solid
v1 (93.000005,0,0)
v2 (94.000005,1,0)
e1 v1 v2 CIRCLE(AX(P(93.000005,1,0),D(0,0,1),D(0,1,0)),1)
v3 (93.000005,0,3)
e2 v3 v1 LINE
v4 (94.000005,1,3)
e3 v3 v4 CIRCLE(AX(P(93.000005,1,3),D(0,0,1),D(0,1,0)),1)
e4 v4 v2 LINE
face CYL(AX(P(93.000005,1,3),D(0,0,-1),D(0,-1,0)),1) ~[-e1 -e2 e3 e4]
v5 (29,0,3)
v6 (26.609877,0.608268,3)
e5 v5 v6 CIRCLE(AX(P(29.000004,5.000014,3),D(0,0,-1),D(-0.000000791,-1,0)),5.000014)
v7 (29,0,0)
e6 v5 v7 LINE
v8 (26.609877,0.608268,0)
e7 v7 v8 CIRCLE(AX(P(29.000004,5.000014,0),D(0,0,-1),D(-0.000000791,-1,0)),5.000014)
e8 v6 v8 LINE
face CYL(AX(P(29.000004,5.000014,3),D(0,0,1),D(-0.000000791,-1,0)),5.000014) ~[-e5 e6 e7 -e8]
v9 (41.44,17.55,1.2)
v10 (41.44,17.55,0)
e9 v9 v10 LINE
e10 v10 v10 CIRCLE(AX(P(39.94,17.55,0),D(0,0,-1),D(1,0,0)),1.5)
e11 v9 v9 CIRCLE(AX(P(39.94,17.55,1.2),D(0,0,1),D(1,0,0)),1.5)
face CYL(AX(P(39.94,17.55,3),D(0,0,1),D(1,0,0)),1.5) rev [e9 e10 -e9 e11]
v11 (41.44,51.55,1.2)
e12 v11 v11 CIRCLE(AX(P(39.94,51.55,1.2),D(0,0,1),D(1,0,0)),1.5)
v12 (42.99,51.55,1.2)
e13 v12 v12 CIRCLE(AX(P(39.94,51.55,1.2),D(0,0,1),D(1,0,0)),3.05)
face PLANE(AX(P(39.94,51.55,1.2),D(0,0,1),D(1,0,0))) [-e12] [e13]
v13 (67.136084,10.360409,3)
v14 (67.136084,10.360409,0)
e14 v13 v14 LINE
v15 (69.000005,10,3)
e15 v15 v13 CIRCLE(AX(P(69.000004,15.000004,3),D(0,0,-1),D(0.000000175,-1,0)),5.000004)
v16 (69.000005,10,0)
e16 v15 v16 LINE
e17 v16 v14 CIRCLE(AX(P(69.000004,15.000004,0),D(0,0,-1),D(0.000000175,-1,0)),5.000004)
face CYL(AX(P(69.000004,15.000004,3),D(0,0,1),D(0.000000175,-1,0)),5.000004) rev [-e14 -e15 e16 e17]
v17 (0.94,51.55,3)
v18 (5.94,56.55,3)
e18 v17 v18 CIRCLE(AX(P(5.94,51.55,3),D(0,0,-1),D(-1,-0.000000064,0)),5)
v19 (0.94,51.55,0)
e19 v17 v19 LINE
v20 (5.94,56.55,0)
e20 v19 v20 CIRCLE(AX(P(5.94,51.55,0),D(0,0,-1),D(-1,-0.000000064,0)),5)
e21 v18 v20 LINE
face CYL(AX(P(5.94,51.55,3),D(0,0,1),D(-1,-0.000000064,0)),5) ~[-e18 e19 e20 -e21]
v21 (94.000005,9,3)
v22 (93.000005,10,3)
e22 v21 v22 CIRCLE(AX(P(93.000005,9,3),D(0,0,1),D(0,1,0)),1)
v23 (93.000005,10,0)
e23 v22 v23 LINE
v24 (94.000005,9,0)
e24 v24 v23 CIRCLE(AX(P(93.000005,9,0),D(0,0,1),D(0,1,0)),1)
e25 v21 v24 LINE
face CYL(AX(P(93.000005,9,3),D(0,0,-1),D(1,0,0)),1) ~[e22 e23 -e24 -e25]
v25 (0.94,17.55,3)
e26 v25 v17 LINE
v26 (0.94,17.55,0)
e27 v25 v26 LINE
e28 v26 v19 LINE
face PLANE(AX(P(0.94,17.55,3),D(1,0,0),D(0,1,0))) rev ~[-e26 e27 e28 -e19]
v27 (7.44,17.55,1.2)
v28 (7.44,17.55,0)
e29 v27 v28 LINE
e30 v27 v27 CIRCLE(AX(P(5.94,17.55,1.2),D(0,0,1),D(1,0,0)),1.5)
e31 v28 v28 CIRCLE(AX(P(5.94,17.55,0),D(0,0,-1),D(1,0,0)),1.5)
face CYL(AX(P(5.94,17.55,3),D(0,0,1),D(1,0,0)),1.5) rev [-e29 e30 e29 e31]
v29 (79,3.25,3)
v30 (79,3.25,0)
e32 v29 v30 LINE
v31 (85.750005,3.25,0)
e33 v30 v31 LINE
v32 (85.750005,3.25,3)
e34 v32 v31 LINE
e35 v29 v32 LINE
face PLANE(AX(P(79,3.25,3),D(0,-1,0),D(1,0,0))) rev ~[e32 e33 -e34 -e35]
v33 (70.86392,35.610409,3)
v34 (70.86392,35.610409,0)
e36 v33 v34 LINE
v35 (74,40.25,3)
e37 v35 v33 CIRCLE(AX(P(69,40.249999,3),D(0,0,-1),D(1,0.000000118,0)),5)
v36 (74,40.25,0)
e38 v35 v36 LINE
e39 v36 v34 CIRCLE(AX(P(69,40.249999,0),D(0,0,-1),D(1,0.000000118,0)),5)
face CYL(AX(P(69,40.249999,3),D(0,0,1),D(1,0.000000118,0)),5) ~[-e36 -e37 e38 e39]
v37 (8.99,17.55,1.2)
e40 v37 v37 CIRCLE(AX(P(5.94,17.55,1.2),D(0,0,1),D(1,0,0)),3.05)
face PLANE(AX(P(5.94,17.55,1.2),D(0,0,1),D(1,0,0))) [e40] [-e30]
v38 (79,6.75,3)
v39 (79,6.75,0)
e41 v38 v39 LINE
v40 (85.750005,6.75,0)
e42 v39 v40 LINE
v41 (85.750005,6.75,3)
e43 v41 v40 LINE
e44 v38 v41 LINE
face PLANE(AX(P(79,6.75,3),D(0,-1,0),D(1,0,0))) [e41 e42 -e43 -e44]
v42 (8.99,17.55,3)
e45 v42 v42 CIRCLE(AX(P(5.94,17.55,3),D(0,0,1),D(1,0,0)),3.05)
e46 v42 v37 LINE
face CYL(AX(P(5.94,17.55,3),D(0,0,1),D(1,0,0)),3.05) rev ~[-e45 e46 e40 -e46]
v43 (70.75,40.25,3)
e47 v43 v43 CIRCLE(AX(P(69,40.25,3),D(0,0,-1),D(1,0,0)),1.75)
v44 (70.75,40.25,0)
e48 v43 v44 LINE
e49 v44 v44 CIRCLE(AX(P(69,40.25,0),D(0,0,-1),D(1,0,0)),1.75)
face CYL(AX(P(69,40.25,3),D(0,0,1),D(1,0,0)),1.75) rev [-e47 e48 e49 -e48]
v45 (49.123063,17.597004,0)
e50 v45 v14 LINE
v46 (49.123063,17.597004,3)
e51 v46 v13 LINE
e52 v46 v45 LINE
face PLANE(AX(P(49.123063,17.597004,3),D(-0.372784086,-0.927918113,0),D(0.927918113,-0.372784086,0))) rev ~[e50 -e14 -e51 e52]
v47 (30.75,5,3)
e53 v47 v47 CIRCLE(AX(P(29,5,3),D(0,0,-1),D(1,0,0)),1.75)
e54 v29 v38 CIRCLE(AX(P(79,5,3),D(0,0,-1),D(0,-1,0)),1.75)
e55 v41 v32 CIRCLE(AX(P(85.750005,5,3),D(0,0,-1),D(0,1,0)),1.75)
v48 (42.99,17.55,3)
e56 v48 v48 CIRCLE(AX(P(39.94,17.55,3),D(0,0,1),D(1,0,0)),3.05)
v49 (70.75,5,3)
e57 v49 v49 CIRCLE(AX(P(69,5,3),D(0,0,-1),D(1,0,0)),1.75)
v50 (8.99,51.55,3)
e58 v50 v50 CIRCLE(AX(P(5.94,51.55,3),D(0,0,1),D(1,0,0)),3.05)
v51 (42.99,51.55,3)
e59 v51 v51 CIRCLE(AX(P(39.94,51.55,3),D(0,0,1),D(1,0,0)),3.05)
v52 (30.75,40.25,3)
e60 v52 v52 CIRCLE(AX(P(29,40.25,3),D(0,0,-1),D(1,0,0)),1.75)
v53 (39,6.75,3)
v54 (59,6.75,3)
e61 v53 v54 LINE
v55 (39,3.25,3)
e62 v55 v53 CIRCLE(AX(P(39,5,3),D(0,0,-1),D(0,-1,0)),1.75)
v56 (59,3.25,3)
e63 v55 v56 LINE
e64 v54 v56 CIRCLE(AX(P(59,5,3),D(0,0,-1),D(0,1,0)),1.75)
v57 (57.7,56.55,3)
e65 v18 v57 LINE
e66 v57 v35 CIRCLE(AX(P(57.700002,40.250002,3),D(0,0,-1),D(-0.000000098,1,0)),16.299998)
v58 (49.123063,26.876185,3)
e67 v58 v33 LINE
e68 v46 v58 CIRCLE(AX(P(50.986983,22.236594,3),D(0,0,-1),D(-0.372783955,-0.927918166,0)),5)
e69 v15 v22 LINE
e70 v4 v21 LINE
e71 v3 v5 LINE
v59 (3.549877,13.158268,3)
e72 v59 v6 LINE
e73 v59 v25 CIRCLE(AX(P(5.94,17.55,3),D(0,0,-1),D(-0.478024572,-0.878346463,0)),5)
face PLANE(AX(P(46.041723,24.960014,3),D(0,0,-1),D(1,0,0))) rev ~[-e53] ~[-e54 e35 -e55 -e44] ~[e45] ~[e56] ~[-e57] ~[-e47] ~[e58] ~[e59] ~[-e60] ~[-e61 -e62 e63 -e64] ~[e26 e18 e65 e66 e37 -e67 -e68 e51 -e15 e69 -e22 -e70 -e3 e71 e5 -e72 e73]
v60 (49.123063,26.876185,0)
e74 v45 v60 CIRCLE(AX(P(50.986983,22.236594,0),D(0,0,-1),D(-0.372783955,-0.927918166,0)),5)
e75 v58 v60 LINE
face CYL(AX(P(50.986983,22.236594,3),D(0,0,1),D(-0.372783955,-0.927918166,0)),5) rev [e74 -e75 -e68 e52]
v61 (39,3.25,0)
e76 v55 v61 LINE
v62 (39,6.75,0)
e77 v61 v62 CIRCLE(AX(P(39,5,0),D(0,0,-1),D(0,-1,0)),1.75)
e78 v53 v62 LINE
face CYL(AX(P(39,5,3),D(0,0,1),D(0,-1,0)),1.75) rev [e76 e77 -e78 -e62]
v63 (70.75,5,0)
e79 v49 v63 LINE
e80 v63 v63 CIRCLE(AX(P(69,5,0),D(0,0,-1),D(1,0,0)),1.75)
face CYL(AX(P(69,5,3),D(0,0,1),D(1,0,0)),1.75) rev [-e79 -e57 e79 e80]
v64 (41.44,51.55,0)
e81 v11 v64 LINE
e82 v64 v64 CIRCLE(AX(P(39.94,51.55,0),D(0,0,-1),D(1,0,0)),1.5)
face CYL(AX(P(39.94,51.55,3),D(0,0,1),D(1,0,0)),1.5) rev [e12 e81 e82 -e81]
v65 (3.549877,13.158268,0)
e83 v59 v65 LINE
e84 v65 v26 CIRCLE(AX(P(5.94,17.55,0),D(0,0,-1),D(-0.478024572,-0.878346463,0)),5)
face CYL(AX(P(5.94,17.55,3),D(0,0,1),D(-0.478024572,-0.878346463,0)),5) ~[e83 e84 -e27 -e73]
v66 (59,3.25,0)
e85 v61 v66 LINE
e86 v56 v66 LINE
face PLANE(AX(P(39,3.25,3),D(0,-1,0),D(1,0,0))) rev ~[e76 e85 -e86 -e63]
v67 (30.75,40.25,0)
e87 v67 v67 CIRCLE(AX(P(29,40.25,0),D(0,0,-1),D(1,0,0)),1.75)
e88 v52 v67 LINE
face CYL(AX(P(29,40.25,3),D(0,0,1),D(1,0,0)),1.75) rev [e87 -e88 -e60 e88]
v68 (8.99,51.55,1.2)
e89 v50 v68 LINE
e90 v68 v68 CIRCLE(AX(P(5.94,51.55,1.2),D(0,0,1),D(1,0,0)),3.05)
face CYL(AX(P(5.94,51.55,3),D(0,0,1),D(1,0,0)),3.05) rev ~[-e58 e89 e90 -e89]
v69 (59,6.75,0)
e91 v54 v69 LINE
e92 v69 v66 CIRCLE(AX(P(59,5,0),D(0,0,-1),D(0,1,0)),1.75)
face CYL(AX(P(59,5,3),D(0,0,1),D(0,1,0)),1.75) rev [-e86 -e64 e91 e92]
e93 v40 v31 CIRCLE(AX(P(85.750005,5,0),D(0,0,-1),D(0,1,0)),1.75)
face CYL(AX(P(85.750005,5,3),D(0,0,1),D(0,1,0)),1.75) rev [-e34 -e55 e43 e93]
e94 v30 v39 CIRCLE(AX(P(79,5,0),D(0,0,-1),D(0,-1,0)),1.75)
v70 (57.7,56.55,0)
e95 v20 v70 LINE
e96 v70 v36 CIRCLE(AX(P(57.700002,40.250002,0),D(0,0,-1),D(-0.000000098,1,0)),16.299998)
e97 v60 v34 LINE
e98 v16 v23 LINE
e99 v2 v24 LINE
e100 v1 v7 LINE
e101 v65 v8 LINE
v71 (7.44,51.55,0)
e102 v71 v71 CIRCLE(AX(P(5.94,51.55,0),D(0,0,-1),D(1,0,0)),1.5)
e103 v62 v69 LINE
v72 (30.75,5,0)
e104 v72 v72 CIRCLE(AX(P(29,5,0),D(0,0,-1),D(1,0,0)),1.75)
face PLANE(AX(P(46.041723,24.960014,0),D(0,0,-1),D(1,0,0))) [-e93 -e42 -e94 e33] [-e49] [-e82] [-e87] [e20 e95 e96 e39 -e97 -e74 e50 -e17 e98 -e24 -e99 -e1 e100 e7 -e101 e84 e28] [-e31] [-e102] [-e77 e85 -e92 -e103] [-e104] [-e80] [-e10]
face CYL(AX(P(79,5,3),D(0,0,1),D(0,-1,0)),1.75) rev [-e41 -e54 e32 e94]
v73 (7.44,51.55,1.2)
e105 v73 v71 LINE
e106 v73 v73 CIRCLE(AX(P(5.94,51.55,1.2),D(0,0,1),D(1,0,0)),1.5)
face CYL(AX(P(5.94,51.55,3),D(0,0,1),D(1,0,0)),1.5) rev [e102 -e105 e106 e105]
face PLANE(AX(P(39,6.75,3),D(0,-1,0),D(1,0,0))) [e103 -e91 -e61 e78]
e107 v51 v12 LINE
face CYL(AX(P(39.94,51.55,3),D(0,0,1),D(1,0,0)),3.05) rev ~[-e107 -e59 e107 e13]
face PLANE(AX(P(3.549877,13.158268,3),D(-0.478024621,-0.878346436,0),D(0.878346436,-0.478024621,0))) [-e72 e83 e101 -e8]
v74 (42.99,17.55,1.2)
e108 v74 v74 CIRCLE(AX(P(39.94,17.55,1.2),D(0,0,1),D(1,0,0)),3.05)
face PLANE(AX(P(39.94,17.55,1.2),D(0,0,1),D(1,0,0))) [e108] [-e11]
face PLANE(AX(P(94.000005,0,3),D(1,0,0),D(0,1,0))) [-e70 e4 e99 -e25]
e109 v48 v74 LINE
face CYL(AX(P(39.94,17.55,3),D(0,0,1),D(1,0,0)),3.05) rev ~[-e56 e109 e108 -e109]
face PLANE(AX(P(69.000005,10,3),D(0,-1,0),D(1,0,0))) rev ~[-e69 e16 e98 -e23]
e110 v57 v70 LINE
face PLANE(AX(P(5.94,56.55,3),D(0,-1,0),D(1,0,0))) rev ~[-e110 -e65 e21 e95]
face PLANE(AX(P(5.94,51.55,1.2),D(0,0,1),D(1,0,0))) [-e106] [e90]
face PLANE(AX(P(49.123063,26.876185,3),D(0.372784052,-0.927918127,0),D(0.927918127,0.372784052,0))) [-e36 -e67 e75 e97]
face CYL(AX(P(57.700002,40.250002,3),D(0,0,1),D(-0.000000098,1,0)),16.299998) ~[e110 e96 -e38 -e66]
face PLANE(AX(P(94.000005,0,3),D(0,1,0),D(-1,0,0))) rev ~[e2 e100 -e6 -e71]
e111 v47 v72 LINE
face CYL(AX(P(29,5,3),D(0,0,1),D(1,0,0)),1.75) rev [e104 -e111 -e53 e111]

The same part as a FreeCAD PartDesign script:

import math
import FreeCAD as App
import Part
import Sketcher

V = App.Vector
Q = App.Units.Quantity


def edges_at(feature, points):
    """Names of the edges that pass closest to the given points."""
    edges = feature.Shape.Edges
    near = lambda p: min(range(len(edges)), key=lambda i: edges[i].distToShape(Part.Vertex(*p))[0])
    return sorted({f"Edge{near(p) + 1}" for p in points})

doc = App.newDocument("Part")
body = doc.addObject("PartDesign::Body", "Body")

# Sketch on XY plane
sketch1 = body.newObject("Sketcher::SketchObject", "Sketch")
sketch1.AttachmentSupport = (doc.getObject("XY_Plane"), [""])
sketch1.MapMode = "FlatFace"
sketch1.addGeometry([
    Part.LineSegment(V(5, 0, 0), V(56.76, 0, 0)),  # 0
    Part.ArcOfCircle(Part.Circle(V(56.760002, 16.299998, 0), V(0, 0, 1), 16.299998), math.radians(-90.000006), math.radians(0.000006)),  # 1
    Part.ArcOfCircle(Part.Circle(V(68.06, 16.300001, 0), V(0, 0, 1), 5), math.radians(-0.000007), math.radians(68.112587)),  # 2
    Part.LineSegment(V(69.92392, 20.939591, 0), V(48.183063, 29.673815, 0)),  # 3
    Part.ArcOfCircle(Part.Circle(V(50.046983, 34.313406, 0), V(0, 0, 1), 5), math.radians(111.887414), math.radians(248.112586)),  # 4
    Part.LineSegment(V(48.183063, 38.952996, 0), V(66.196084, 46.189591, 0)),  # 5
    Part.ArcOfCircle(Part.Circle(V(68.060004, 41.549996, 0), V(0, 0, 1), 5.000004), math.radians(89.99999), math.radians(111.8874)),  # 6
    Part.LineSegment(V(68.060005, 46.55, 0), V(93.060005, 46.55, 0)),  # 7
    Part.LineSegment(V(93.060005, 46.55, 0), V(93.060005, 56.55, 0)),  # 8
    Part.LineSegment(V(93.060005, 56.55, 0), V(28.06, 56.55, 0)),  # 9
    Part.ArcOfCircle(Part.Circle(V(28.060004, 51.549986, 0), V(0, 0, 1), 5.000014), math.radians(90.000045), math.radians(118.55643)),  # 10
    Part.LineSegment(V(25.669877, 55.941732, 0), V(2.609877, 43.391732, 0)),  # 11
    Part.ArcOfCircle(Part.Circle(V(5, 39, 0), V(0, 0, 1), 5), math.radians(118.556463), math.radians(179.999999)),  # 12
    Part.LineSegment(V(0, 39, 0), V(0, 5, 0)),  # 13
    Part.ArcOfCircle(Part.Circle(V(5, 5, 0), V(0, 0, 1), 5), math.radians(179.999996), math.radians(270.000004)),  # 14
    Part.Circle(V(5, 5, 0), V(0, 0, 1), 1.5),  # 15
    Part.Circle(V(39, 5, 0), V(0, 0, 1), 1.5),  # 16
    Part.Circle(V(28.06, 16.3, 0), V(0, 0, 1), 1.75),  # 17
    Part.Circle(V(68.06, 16.3, 0), V(0, 0, 1), 1.75),  # 18
    Part.Circle(V(5, 39, 0), V(0, 0, 1), 1.5),  # 19
    Part.Circle(V(39, 39, 0), V(0, 0, 1), 1.5),  # 20
    Part.Circle(V(28.06, 51.55, 0), V(0, 0, 1), 1.75),  # 21
    Part.ArcOfCircle(Part.Circle(V(38.06, 51.55, 0), V(0, 0, 1), 1.75), math.radians(90), math.radians(270)),  # 22
    Part.LineSegment(V(38.06, 53.3, 0), V(58.06, 53.3, 0)),  # 23
    Part.ArcOfCircle(Part.Circle(V(58.06, 51.55, 0), V(0, 0, 1), 1.75), math.radians(-90), math.radians(90)),  # 24
    Part.LineSegment(V(58.06, 49.8, 0), V(38.06, 49.8, 0)),  # 25
    Part.Circle(V(68.06, 51.55, 0), V(0, 0, 1), 1.75),  # 26
    Part.ArcOfCircle(Part.Circle(V(78.06, 51.55, 0), V(0, 0, 1), 1.75), math.radians(90), math.radians(270)),  # 27
    Part.LineSegment(V(78.06, 53.3, 0), V(84.810005, 53.3, 0)),  # 28
    Part.ArcOfCircle(Part.Circle(V(84.810005, 51.55, 0), V(0, 0, 1), 1.75), math.radians(-90), math.radians(90)),  # 29
    Part.LineSegment(V(84.810005, 49.8, 0), V(78.06, 49.8, 0)),  # 30
], False)
sketch1.addConstraint([
    Sketcher.Constraint("Tangent", 0, 2, 1, 1),
    Sketcher.Constraint("Tangent", 1, 2, 2, 1),
    Sketcher.Constraint("Tangent", 2, 2, 3, 1),
    Sketcher.Constraint("Tangent", 3, 2, 4, 2),
    Sketcher.Constraint("Tangent", 4, 1, 5, 1),
    Sketcher.Constraint("Tangent", 5, 2, 6, 2),
    Sketcher.Constraint("Tangent", 6, 1, 7, 1),
    Sketcher.Constraint("Coincident", 7, 2, 8, 1),
    Sketcher.Constraint("Coincident", 8, 2, 9, 1),
    Sketcher.Constraint("Tangent", 9, 2, 10, 1),
    Sketcher.Constraint("Tangent", 10, 2, 11, 1),
    Sketcher.Constraint("Tangent", 11, 2, 12, 1),
    Sketcher.Constraint("Tangent", 12, 2, 13, 1),
    Sketcher.Constraint("Tangent", 13, 2, 14, 1),
    Sketcher.Constraint("Tangent", 14, 2, 0, 1),
    Sketcher.Constraint("Tangent", 22, 1, 23, 1),
    Sketcher.Constraint("Tangent", 23, 2, 24, 2),
    Sketcher.Constraint("Tangent", 24, 1, 25, 1),
    Sketcher.Constraint("Tangent", 25, 2, 22, 2),
    Sketcher.Constraint("Tangent", 27, 1, 28, 1),
    Sketcher.Constraint("Tangent", 28, 2, 29, 2),
    Sketcher.Constraint("Tangent", 29, 1, 30, 1),
    Sketcher.Constraint("Tangent", 30, 2, 27, 2),
    Sketcher.Constraint("Horizontal", 0),
    Sketcher.Constraint("Horizontal", 7),
    Sketcher.Constraint("Vertical", 8),
    Sketcher.Constraint("Horizontal", 9),
    Sketcher.Constraint("Vertical", 13),
    Sketcher.Constraint("Horizontal", 23),
    Sketcher.Constraint("Horizontal", 25),
    Sketcher.Constraint("Horizontal", 28),
    Sketcher.Constraint("Horizontal", 30),
    Sketcher.Constraint("Coincident", 15, 3, 14, 3),
    Sketcher.Constraint("Coincident", 18, 3, 2, 3),
    Sketcher.Constraint("Coincident", 19, 3, 12, 3),
    Sketcher.Constraint("Equal", 2, 4),
    Sketcher.Constraint("Equal", 4, 12),
    Sketcher.Constraint("Equal", 12, 14),
    Sketcher.Constraint("Equal", 15, 16),
    Sketcher.Constraint("Equal", 17, 18),
    Sketcher.Constraint("Equal", 16, 19),
    Sketcher.Constraint("Equal", 19, 20),
    Sketcher.Constraint("Equal", 18, 21),
    Sketcher.Constraint("Equal", 21, 22),
    Sketcher.Constraint("Equal", 24, 26),
    Sketcher.Constraint("Equal", 26, 27),
    Sketcher.Constraint("PointOnObject", 0, 2, -1),
    Sketcher.Constraint("PointOnObject", 12, 2, -2),
    Sketcher.Constraint("Horizontal", 15, 3, 16, 3),
    Sketcher.Constraint("Horizontal", 2, 3, 17, 3),
    Sketcher.Constraint("Horizontal", 19, 3, 20, 3),
    Sketcher.Constraint("Horizontal", 21, 3, 22, 3),
    Sketcher.Constraint("Horizontal", 24, 3, 26, 3),
    Sketcher.Constraint("Horizontal", 26, 3, 27, 3),
    Sketcher.Constraint("Horizontal", 18, 3, 1, 2),
    Sketcher.Constraint("Vertical", 16, 3, 20, 3),
    Sketcher.Constraint("Vertical", 17, 3, 21, 3),
    Sketcher.Constraint("Vertical", 18, 3, 26, 3),
    Sketcher.Constraint("Vertical", 3, 2, 4, 1),
    Sketcher.Constraint("Vertical", 21, 3, 9, 2),
    Sketcher.Constraint("Diameter", 15, Q("3 mm")),
    Sketcher.Constraint("Radius", 2, Q("5 mm")),
    Sketcher.Constraint("Diameter", 17, Q("3.5 mm")),
    Sketcher.Constraint("Radius", 1, Q("16.299998 mm")),
    Sketcher.Constraint("DistanceX", 7, 1, 7, 2, Q("25 mm")),
    Sketcher.Constraint("DistanceX", 23, 1, 23, 2, Q("20 mm")),
    Sketcher.Constraint("DistanceY", 8, 1, 8, 2, Q("10 mm")),
    Sketcher.Constraint("DistanceY", 13, 2, 13, 1, Q("34 mm")),
    Sketcher.Constraint("DistanceX", -1, 1, 16, 3, Q("39 mm")),
    Sketcher.Constraint("DistanceX", 10, 3, 6, 3, Q("40 mm")),
    Sketcher.Constraint("DistanceX", 21, 3, 22, 3, Q("10 mm")),
    Sketcher.Constraint("DistanceX", 24, 3, 26, 3, Q("10 mm")),
    Sketcher.Constraint("DistanceX", 26, 3, 27, 3, Q("10 mm")),
    Sketcher.Constraint("DistanceY", 6, 1, 26, 3, Q("5 mm")),
    Sketcher.Constraint("DistanceX", 0, 1, 0, 2, Q("51.76 mm")),
    Sketcher.Constraint("DistanceY", -1, 1, 22, 1, Q("53.3 mm")),
    Sketcher.Constraint("DistanceX", 6, 3, 29, 3, Q("16.750001 mm")),
    Sketcher.Constraint("DistanceX", 11, 2, 10, 2, Q("23.06 mm")),
    Sketcher.Constraint("Radius", 6, Q("5.000004 mm")),
    Sketcher.Constraint("DistanceX", -1, 1, 2, 2, Q("69.92392 mm")),
])
pad1 = body.newObject("PartDesign::Pad", "Pad")
pad1.Profile = sketch1
pad1.Length = 3
doc.recompute()

fillet = body.newObject("PartDesign::Fillet", "Fillet")
fillet.Base = (pad1, edges_at(pad1, [(93.06, 46.55, 1.5), (93.06, 56.55, 1.5)]))
fillet.Radius = 1

# Sketch on XY plane
sketch2 = body.newObject("Sketcher::SketchObject", "Sketch001")
sketch2.AttachmentSupport = (doc.getObject("XY_Plane"), [""])
sketch2.MapMode = "FlatFace"
sketch2.addGeometry([
    Part.Circle(V(5, 5, 0), V(0, 0, 1), 3.05),
    Part.Circle(V(39, 5, 0), V(0, 0, 1), 3.05),
    Part.Circle(V(39, 39, 0), V(0, 0, 1), 3.05),
    Part.Circle(V(5, 39, 0), V(0, 0, 1), 3.05),
], False)
sketch2.addConstraint([
    Sketcher.Constraint("Equal", 0, 1),
    Sketcher.Constraint("Equal", 1, 2),
    Sketcher.Constraint("Equal", 2, 3),
    Sketcher.Constraint("Horizontal", 0, 3, 1, 3),
    Sketcher.Constraint("Horizontal", 2, 3, 3, 3),
    Sketcher.Constraint("Vertical", 1, 3, 2, 3),
    Sketcher.Constraint("Vertical", 0, 3, 3, 3),
    Sketcher.Constraint("Diameter", 0, Q("6.1 mm")),
    Sketcher.Constraint("DistanceX", -1, 1, 0, 3, Q("5 mm")),
    Sketcher.Constraint("DistanceY", -1, 1, 0, 3, Q("5 mm")),
    Sketcher.Constraint("DistanceX", -1, 1, 1, 3, Q("39 mm")),
    Sketcher.Constraint("DistanceY", -1, 1, 2, 3, Q("39 mm")),
])
pocket1 = body.newObject("PartDesign::Pocket", "Pocket")
pocket1.Profile = sketch2
pocket1.Length = 1.8
pocket1.Reversed = True
body2 = doc.addObject("PartDesign::Body", "Body001")
doc.recompute()

body.Placement = App.Placement(V(0.94, 56.55, 3), App.Rotation(V(1, 0, 0), 180))
boolean = body2.newObject("PartDesign::Boolean", "Boolean")
boolean.Type = "Fuse"
boolean.addObjects([body])

doc.recompute()
